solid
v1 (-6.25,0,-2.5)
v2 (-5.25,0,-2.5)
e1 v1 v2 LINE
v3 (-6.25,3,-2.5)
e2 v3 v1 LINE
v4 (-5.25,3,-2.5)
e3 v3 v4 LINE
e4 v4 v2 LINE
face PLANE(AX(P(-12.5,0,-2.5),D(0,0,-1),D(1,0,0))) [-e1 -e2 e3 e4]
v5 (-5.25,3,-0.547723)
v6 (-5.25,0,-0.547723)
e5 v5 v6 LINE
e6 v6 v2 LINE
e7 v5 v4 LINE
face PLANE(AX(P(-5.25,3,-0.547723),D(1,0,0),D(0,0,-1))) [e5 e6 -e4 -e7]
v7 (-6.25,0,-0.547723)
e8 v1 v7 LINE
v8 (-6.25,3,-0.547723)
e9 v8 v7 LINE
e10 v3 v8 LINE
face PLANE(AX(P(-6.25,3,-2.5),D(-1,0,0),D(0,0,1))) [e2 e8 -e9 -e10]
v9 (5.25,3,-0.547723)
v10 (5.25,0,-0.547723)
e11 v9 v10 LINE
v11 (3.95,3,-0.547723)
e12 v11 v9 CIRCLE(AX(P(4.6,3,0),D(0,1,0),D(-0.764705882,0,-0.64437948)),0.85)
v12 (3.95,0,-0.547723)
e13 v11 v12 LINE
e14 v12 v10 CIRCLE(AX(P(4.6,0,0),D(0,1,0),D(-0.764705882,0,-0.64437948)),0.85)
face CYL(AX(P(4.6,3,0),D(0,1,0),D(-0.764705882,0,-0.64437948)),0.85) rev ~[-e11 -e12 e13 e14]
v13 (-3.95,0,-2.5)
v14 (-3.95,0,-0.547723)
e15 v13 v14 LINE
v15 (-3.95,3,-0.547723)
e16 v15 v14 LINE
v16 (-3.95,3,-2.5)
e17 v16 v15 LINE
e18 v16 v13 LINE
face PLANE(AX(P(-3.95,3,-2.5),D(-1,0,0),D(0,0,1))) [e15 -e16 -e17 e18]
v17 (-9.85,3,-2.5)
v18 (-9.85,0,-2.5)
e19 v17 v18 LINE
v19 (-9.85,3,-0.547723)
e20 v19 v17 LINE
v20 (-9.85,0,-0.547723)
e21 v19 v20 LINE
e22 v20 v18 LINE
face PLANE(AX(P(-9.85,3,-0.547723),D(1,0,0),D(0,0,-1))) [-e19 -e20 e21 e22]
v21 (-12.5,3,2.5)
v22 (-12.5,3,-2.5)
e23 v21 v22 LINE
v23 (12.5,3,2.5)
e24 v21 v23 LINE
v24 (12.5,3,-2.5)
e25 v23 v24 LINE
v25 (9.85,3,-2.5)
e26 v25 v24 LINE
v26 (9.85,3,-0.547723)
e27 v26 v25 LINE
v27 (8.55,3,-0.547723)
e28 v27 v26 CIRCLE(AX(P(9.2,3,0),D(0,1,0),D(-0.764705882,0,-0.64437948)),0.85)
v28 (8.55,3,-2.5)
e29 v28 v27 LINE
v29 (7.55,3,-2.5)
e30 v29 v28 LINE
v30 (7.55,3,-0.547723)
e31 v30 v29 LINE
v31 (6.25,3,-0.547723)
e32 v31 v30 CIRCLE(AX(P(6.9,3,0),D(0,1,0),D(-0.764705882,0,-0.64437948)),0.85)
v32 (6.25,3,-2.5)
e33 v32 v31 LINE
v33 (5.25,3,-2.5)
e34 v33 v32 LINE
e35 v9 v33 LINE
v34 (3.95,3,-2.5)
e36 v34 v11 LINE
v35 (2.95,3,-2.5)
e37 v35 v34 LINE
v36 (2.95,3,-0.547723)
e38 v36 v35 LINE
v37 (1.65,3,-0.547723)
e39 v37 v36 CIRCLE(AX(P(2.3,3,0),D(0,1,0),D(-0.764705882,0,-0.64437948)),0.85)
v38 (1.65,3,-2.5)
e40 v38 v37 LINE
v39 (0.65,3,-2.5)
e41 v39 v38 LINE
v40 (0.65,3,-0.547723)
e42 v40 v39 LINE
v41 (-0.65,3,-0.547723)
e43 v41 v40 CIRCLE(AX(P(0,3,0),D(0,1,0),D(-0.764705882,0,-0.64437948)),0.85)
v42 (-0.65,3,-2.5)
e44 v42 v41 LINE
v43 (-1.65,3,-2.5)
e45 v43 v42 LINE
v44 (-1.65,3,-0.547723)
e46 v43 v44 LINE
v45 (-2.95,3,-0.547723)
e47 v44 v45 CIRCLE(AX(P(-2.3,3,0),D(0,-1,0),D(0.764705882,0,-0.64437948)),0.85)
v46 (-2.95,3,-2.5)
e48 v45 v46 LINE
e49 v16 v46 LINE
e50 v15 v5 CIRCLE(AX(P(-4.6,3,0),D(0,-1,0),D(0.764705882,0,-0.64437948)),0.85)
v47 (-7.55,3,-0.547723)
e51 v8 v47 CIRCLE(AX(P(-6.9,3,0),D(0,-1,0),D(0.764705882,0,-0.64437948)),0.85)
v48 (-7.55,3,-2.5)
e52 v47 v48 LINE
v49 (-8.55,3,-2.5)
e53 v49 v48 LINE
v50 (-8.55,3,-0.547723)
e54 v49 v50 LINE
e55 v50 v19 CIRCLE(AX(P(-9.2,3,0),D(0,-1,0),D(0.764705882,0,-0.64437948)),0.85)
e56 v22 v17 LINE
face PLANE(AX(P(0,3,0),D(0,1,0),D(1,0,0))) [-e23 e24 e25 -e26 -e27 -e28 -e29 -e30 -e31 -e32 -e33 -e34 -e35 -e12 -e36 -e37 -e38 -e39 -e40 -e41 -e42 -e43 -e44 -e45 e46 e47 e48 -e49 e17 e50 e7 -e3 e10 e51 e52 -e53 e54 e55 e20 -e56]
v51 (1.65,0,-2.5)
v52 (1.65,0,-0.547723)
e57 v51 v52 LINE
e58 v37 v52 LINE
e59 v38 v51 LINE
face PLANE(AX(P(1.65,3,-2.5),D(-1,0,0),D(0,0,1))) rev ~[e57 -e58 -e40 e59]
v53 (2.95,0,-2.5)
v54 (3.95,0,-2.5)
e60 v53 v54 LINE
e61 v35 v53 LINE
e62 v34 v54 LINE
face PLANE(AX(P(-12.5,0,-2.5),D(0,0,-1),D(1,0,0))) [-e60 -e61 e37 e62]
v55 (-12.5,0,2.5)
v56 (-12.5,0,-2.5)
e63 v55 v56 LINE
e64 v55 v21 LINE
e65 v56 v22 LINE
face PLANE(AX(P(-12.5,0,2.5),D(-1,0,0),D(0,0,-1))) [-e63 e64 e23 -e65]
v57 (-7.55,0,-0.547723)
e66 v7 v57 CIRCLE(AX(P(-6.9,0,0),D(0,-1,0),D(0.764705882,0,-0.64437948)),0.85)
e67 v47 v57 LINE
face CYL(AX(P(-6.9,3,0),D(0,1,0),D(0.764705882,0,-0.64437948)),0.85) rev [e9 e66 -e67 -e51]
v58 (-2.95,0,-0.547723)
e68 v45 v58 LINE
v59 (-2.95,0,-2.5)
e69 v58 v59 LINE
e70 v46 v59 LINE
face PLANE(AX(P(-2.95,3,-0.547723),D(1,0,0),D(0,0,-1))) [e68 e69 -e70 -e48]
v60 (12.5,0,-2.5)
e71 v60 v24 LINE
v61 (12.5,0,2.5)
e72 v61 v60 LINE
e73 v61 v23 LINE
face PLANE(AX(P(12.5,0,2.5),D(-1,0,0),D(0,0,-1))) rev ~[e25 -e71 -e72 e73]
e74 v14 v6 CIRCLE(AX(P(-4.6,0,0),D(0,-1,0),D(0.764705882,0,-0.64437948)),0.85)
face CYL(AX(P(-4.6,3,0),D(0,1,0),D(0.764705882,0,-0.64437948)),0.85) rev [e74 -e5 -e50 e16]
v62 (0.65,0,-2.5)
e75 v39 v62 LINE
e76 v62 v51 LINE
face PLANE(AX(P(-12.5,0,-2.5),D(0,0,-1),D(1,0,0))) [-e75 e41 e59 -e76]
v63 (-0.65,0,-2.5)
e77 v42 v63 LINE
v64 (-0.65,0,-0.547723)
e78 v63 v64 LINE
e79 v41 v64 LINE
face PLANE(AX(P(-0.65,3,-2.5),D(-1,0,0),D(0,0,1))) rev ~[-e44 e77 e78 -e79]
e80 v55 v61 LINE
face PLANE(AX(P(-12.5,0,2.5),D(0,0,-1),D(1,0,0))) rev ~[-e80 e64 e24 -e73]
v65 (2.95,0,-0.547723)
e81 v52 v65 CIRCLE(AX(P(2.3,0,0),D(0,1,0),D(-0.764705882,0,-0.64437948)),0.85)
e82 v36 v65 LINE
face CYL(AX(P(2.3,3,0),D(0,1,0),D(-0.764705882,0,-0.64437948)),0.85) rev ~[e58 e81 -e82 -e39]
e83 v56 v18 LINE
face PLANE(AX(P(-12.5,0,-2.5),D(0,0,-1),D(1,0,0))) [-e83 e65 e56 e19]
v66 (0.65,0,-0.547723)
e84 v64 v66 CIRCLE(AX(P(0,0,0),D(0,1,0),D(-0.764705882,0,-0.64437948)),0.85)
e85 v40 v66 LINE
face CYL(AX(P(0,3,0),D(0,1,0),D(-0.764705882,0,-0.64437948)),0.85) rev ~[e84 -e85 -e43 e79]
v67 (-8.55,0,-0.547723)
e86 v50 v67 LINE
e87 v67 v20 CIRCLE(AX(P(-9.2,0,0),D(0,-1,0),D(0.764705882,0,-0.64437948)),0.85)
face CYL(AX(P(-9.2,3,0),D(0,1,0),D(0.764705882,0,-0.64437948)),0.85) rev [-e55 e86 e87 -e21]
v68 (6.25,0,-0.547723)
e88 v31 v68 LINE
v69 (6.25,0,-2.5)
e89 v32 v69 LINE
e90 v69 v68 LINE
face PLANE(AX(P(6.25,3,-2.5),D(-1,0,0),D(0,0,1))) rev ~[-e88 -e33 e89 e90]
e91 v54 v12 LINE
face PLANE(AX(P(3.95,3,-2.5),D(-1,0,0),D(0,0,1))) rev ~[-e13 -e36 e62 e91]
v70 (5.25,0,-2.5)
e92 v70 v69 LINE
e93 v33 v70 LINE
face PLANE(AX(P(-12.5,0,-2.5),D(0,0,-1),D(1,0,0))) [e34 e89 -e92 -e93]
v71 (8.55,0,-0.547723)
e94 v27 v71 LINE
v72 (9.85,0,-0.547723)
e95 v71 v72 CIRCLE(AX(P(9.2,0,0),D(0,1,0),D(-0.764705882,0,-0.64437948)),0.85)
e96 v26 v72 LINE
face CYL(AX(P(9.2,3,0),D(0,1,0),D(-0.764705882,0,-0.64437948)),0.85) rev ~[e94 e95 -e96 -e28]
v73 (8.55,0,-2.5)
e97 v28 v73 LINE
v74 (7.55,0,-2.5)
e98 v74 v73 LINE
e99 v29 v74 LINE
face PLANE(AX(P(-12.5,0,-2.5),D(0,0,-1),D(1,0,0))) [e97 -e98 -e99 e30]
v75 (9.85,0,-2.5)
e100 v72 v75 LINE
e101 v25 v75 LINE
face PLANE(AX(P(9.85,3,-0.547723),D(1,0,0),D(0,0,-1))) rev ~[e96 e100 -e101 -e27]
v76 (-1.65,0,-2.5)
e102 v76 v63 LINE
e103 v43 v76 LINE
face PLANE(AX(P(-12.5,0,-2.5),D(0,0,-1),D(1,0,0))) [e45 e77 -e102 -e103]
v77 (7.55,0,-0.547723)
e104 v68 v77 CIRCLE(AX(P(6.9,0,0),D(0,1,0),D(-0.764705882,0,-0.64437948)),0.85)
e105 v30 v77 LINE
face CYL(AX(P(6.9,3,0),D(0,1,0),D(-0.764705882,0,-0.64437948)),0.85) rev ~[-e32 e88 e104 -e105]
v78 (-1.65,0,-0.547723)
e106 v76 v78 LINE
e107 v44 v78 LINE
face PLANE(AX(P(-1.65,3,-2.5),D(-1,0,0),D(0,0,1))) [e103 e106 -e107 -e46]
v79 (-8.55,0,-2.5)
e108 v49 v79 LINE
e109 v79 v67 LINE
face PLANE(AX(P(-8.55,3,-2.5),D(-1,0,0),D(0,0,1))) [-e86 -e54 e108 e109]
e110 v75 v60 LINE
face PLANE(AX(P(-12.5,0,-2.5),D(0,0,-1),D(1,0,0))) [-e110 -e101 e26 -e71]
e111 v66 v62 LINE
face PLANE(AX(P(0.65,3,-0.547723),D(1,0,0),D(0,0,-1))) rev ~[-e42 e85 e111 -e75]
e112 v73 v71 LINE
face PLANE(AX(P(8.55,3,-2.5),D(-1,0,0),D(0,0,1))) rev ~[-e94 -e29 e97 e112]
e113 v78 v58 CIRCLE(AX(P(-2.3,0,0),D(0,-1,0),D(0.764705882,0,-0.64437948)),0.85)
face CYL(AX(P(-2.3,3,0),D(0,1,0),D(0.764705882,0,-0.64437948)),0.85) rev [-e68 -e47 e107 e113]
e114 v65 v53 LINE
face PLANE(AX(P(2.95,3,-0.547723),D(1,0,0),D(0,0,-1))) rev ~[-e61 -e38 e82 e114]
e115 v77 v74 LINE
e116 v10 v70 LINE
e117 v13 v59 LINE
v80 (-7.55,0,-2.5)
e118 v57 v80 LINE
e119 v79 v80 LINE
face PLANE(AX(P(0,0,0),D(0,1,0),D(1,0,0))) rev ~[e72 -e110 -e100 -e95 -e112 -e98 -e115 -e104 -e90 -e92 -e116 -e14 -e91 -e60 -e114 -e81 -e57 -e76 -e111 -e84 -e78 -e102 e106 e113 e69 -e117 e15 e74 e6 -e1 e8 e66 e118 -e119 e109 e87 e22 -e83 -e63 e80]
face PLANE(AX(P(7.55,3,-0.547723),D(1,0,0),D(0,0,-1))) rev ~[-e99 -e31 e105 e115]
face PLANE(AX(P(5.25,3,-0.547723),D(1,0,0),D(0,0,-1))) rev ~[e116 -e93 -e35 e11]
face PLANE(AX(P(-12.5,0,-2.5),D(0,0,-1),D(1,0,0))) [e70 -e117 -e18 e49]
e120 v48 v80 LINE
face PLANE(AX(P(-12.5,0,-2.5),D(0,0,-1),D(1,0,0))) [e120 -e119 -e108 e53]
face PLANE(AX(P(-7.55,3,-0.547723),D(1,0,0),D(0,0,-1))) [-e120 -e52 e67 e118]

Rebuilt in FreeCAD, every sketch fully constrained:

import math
import FreeCAD as App
import Part
import Sketcher

doc = App.newDocument("Part")
params = doc.addObject("Spreadsheet::Sheet", "Params")
for row, (alias, value) in enumerate([
    ("sketch1_width", "25 mm"),
    ("sketch1_height", "5 mm"),
    ("pad1_length", "3 mm"),
    ("sketch2_radius", "0.85 mm"),
    ("sketch2_width", "1.3 mm"),
    ("pocket1_length", "3 mm"),
    ("linearpattern_pitch", "2.3 mm"),
    ("sketch3_radius", "0.85 mm"),
    ("sketch3_width", "1.3 mm"),
    ("pocket2_length", "3 mm"),
    ("sketch4_radius", "0.85 mm"),
    ("sketch4_width", "1.3 mm"),
    ("pocket3_length", "3 mm"),
    ("sketch5_radius", "0.85 mm"),
    ("sketch5_width", "1.3 mm"),
    ("pocket4_length", "3 mm"),
    ("sketch6_radius", "0.85 mm"),
    ("sketch6_width", "1.3 mm"),
    ("pocket5_length", "3 mm"),
    ("sketch7_radius", "0.85 mm"),
    ("sketch7_width", "1.3 mm"),
    ("pocket6_length", "3 mm"),
], start=1):
    params.set(f"A{row}", alias)
    params.set(f"B{row}", "=" + value)
    params.setAlias(f"B{row}", alias)

body = doc.addObject("PartDesign::Body", "Body")

# Sketch on XZ plane
sketch1 = body.newObject("Sketcher::SketchObject", "Sketch")
sketch1.AttachmentSupport = (doc.getObject("XZ_Plane"), [""])
sketch1.MapMode = "FlatFace"
sketch1.addGeometry([
    Part.LineSegment(App.Vector(-12, -2, 0), App.Vector(-12, 2, 0)),
    Part.LineSegment(App.Vector(-12, 2, 0), App.Vector(12, 2, 0)),
    Part.LineSegment(App.Vector(12, 2, 0), App.Vector(12, -2, 0)),
    Part.LineSegment(App.Vector(12, -2, 0), App.Vector(-12, -2, 0)),
], False)
sketch1.addConstraint([
    Sketcher.Constraint("Coincident", 0, 2, 1, 1),
    Sketcher.Constraint("Coincident", 1, 2, 2, 1),
    Sketcher.Constraint("Coincident", 2, 2, 3, 1),
    Sketcher.Constraint("Coincident", 3, 2, 0, 1),
    Sketcher.Constraint("Vertical", 0),
    Sketcher.Constraint("Horizontal", 1),
    Sketcher.Constraint("Vertical", 2),
    Sketcher.Constraint("Horizontal", 3),
    Sketcher.Constraint("Symmetric", 0, 2, 2, 2, -1, 1),
    Sketcher.Constraint("DistanceX", 1, 1, 1, 2, 25.0),
    Sketcher.Constraint("DistanceY", 0, 1, 0, 2, 5.0),
])
sketch1.setExpression("Constraints[9]", "Params.sketch1_width")
sketch1.setExpression("Constraints[10]", "Params.sketch1_height")
pad1 = body.newObject("PartDesign::Pad", "Pad")
pad1.Profile = sketch1
pad1.setExpression("Length", "Params.pad1_length")
pad1.Reversed = True

# Sketch on XZ plane
sketch2 = body.newObject("Sketcher::SketchObject", "Sketch001")
sketch2.AttachmentSupport = (doc.getObject("XZ_Plane"), [""])
sketch2.MapMode = "FlatFace"
sketch2.AttachmentOffset = App.Placement(App.Vector(0, 0, -3), App.Rotation())
sketch2.addGeometry([
    Part.LineSegment(App.Vector(0.7, -0.5, 0), App.Vector(0.7, -2.5, 0)),
    Part.LineSegment(App.Vector(0.7, -2.5, 0), App.Vector(-0.7, -2.5, 0)),
    Part.LineSegment(App.Vector(-0.7, -2.5, 0), App.Vector(-0.7, -0.5, 0)),
    Part.ArcOfCircle(Part.Circle(App.Vector(0, 0, 0), App.Vector(0, 0, 1), 0.8), math.radians(-40), math.radians(220)),
], False)
sketch2.addConstraint([
    Sketcher.Constraint("Coincident", 0, 2, 1, 1),
    Sketcher.Constraint("Coincident", 1, 2, 2, 1),
    Sketcher.Constraint("Coincident", 2, 2, 3, 2),
    Sketcher.Constraint("Coincident", 3, 1, 0, 1),
    Sketcher.Constraint("Vertical", 0),
    Sketcher.Constraint("Horizontal", 1),
    Sketcher.Constraint("Vertical", 2),
    Sketcher.Constraint("Coincident", 3, 3, -1, 1),
    Sketcher.Constraint("Horizontal", 2, 2, 3, 1),
    Sketcher.Constraint("Radius", 3, 0.85),
    Sketcher.Constraint("DistanceX", 1, 2, 1, 1, 1.3),
    Sketcher.Constraint("DistanceY", 0, 2, -1, 1, 2.5),
])
sketch2.setExpression("Constraints[9]", "Params.sketch2_radius")
sketch2.setExpression("Constraints[10]", "Params.sketch2_width")
pocket1 = body.newObject("PartDesign::Pocket", "Pocket")
pocket1.Profile = sketch2
pocket1.setExpression("Length", "Params.pocket1_length")
pocket1.Reversed = True
doc.recompute()

linearpattern = body.newObject("PartDesign::LinearPattern", "LinearPattern")
linearpattern.Originals = [pocket1]
linearpattern.Direction = (doc.getObject("X_Axis"), [""])
linearpattern.Mode = "offset"
linearpattern.setExpression("Offset", "Params.linearpattern_pitch")
linearpattern.Occurrences = 5
body.Tip = linearpattern

# Sketch on XZ plane
sketch3 = body.newObject("Sketcher::SketchObject", "Sketch002")
sketch3.AttachmentSupport = (doc.getObject("XZ_Plane"), [""])
sketch3.MapMode = "FlatFace"
sketch3.AttachmentOffset = App.Placement(App.Vector(0, 0, -3), App.Rotation())
sketch3.addGeometry([
    Part.LineSegment(App.Vector(-3, -2.5, 0), App.Vector(-3, -0.5, 0)),
    Part.ArcOfCircle(Part.Circle(App.Vector(-2.3, 0, 0), App.Vector(0, 0, 1), 0.8), math.radians(-40), math.radians(220)),
    Part.LineSegment(App.Vector(-1.6, -0.5, 0), App.Vector(-1.6, -2.5, 0)),
    Part.LineSegment(App.Vector(-1.6, -2.5, 0), App.Vector(-3, -2.5, 0)),
], False)
sketch3.addConstraint([
    Sketcher.Constraint("Coincident", 0, 2, 1, 2),
    Sketcher.Constraint("Coincident", 1, 1, 2, 1),
    Sketcher.Constraint("Coincident", 2, 2, 3, 1),
    Sketcher.Constraint("Coincident", 3, 2, 0, 1),
    Sketcher.Constraint("Vertical", 0),
    Sketcher.Constraint("Vertical", 2),
    Sketcher.Constraint("Horizontal", 3),
    Sketcher.Constraint("PointOnObject", 1, 3, -1),
    Sketcher.Constraint("Horizontal", 0, 2, 1, 1),
    Sketcher.Constraint("Radius", 1, 0.85),
    Sketcher.Constraint("DistanceX", 3, 2, 3, 1, 1.3),
    Sketcher.Constraint("DistanceX", 1, 3, -1, 1, 2.3),
    Sketcher.Constraint("DistanceY", 2, 2, -1, 1, 2.5),
])
sketch3.setExpression("Constraints[9]", "Params.sketch3_radius")
sketch3.setExpression("Constraints[10]", "Params.sketch3_width")
pocket2 = body.newObject("PartDesign::Pocket", "Pocket001")
pocket2.Profile = sketch3
pocket2.setExpression("Length", "Params.pocket2_length")
pocket2.Reversed = True

# Sketch on XZ plane
sketch4 = body.newObject("Sketcher::SketchObject", "Sketch003")
sketch4.AttachmentSupport = (doc.getObject("XZ_Plane"), [""])
sketch4.MapMode = "FlatFace"
sketch4.AttachmentOffset = App.Placement(App.Vector(0, 0, -3), App.Rotation())
sketch4.addGeometry([
    Part.LineSegment(App.Vector(-5.2, -2.5, 0), App.Vector(-5.2, -0.5, 0)),
    Part.ArcOfCircle(Part.Circle(App.Vector(-4.6, 0, 0), App.Vector(0, 0, 1), 0.8), math.radians(-40), math.radians(220)),
    Part.LineSegment(App.Vector(-4, -0.5, 0), App.Vector(-4, -2.5, 0)),
    Part.LineSegment(App.Vector(-4, -2.5, 0), App.Vector(-5.2, -2.5, 0)),
], False)
sketch4.addConstraint([
    Sketcher.Constraint("Coincident", 0, 2, 1, 2),
    Sketcher.Constraint("Coincident", 1, 1, 2, 1),
    Sketcher.Constraint("Coincident", 2, 2, 3, 1),
    Sketcher.Constraint("Coincident", 3, 2, 0, 1),
    Sketcher.Constraint("Vertical", 0),
    Sketcher.Constraint("Vertical", 2),
    Sketcher.Constraint("Horizontal", 3),
    Sketcher.Constraint("PointOnObject", 1, 3, -1),
    Sketcher.Constraint("Horizontal", 0, 2, 1, 1),
    Sketcher.Constraint("Radius", 1, 0.85),
    Sketcher.Constraint("DistanceX", 3, 2, 3, 1, 1.3),
    Sketcher.Constraint("DistanceX", 1, 3, -1, 1, 4.6),
    Sketcher.Constraint("DistanceY", 2, 2, -1, 1, 2.5),
])
sketch4.setExpression("Constraints[9]", "Params.sketch4_radius")
sketch4.setExpression("Constraints[10]", "Params.sketch4_width")
pocket3 = body.newObject("PartDesign::Pocket", "Pocket002")
pocket3.Profile = sketch4
pocket3.setExpression("Length", "Params.pocket3_length")
pocket3.Reversed = True

# Sketch on XZ plane
sketch5 = body.newObject("Sketcher::SketchObject", "Sketch004")
sketch5.AttachmentSupport = (doc.getObject("XZ_Plane"), [""])
sketch5.MapMode = "FlatFace"
sketch5.AttachmentOffset = App.Placement(App.Vector(0, 0, -3), App.Rotation())
sketch5.addGeometry([
    Part.LineSegment(App.Vector(-7.5, -2.5, 0), App.Vector(-7.5, -0.5, 0)),
    Part.ArcOfCircle(Part.Circle(App.Vector(-6.9, 0, 0), App.Vector(0, 0, 1), 0.8), math.radians(-40), math.radians(220)),
    Part.LineSegment(App.Vector(-6.2, -0.5, 0), App.Vector(-6.2, -2.5, 0)),
    Part.LineSegment(App.Vector(-6.2, -2.5, 0), App.Vector(-7.5, -2.5, 0)),
], False)
sketch5.addConstraint([
    Sketcher.Constraint("Coincident", 0, 2, 1, 2),
    Sketcher.Constraint("Coincident", 1, 1, 2, 1),
    Sketcher.Constraint("Coincident", 2, 2, 3, 1),
    Sketcher.Constraint("Coincident", 3, 2, 0, 1),
    Sketcher.Constraint("Vertical", 0),
    Sketcher.Constraint("Vertical", 2),
    Sketcher.Constraint("Horizontal", 3),
    Sketcher.Constraint("PointOnObject", 1, 3, -1),
    Sketcher.Constraint("Horizontal", 0, 2, 1, 1),
    Sketcher.Constraint("Radius", 1, 0.85),
    Sketcher.Constraint("DistanceX", 3, 2, 3, 1, 1.3),
    Sketcher.Constraint("DistanceX", 1, 3, -1, 1, 6.9),
    Sketcher.Constraint("DistanceY", 2, 2, -1, 1, 2.5),
])
sketch5.setExpression("Constraints[9]", "Params.sketch5_radius")
sketch5.setExpression("Constraints[10]", "Params.sketch5_width")
pocket4 = body.newObject("PartDesign::Pocket", "Pocket003")
pocket4.Profile = sketch5
pocket4.setExpression("Length", "Params.pocket4_length")
pocket4.Reversed = True

# Sketch on XZ plane
sketch6 = body.newObject("Sketcher::SketchObject", "Sketch005")
sketch6.AttachmentSupport = (doc.getObject("XZ_Plane"), [""])
sketch6.MapMode = "FlatFace"
sketch6.AttachmentOffset = App.Placement(App.Vector(0, 0, -3), App.Rotation())
sketch6.addGeometry([
    Part.LineSegment(App.Vector(-9.8, -2.5, 0), App.Vector(-9.8, -0.5, 0)),
    Part.ArcOfCircle(Part.Circle(App.Vector(-9.2, 0, 0), App.Vector(0, 0, 1), 0.8), math.radians(-40), math.radians(220)),
    Part.LineSegment(App.Vector(-8.6, -0.5, 0), App.Vector(-8.6, -2.5, 0)),
    Part.LineSegment(App.Vector(-8.6, -2.5, 0), App.Vector(-9.8, -2.5, 0)),
], False)
sketch6.addConstraint([
    Sketcher.Constraint("Coincident", 0, 2, 1, 2),
    Sketcher.Constraint("Coincident", 1, 1, 2, 1),
    Sketcher.Constraint("Coincident", 2, 2, 3, 1),
    Sketcher.Constraint("Coincident", 3, 2, 0, 1),
    Sketcher.Constraint("Vertical", 0),
    Sketcher.Constraint("Vertical", 2),
    Sketcher.Constraint("Horizontal", 3),
    Sketcher.Constraint("PointOnObject", 1, 3, -1),
    Sketcher.Constraint("Horizontal", 0, 2, 1, 1),
    Sketcher.Constraint("Radius", 1, 0.85),
    Sketcher.Constraint("DistanceX", 3, 2, 3, 1, 1.3),
    Sketcher.Constraint("DistanceX", 1, 3, -1, 1, 9.2),
    Sketcher.Constraint("DistanceY", 2, 2, -1, 1, 2.5),
])
sketch6.setExpression("Constraints[9]", "Params.sketch6_radius")
sketch6.setExpression("Constraints[10]", "Params.sketch6_width")
pocket5 = body.newObject("PartDesign::Pocket", "Pocket004")
pocket5.Profile = sketch6
pocket5.setExpression("Length", "Params.pocket5_length")
pocket5.Reversed = True

# Sketch on XZ plane
sketch7 = body.newObject("Sketcher::SketchObject", "Sketch006")
sketch7.AttachmentSupport = (doc.getObject("XZ_Plane"), [""])
sketch7.MapMode = "FlatFace"
sketch7.AttachmentOffset = App.Placement(App.Vector(0, 0, -3), App.Rotation())
sketch7.addGeometry([
    Part.LineSegment(App.Vector(-0.7, -2.5, 0), App.Vector(-0.7, -0.5, 0)),
    Part.ArcOfCircle(Part.Circle(App.Vector(0, 0, 0), App.Vector(0, 0, 1), 0.8), math.radians(-40), math.radians(220)),
    Part.LineSegment(App.Vector(0.7, -0.5, 0), App.Vector(0.7, -2.5, 0)),
    Part.LineSegment(App.Vector(0.7, -2.5, 0), App.Vector(-0.7, -2.5, 0)),
], False)
sketch7.addConstraint([
    Sketcher.Constraint("Coincident", 0, 2, 1, 2),
    Sketcher.Constraint("Coincident", 1, 1, 2, 1),
    Sketcher.Constraint("Coincident", 2, 2, 3, 1),
    Sketcher.Constraint("Coincident", 3, 2, 0, 1),
    Sketcher.Constraint("Vertical", 0),
    Sketcher.Constraint("Vertical", 2),
    Sketcher.Constraint("Horizontal", 3),
    Sketcher.Constraint("Coincident", 1, 3, -1, 1),
    Sketcher.Constraint("Horizontal", 0, 2, 1, 1),
    Sketcher.Constraint("Radius", 1, 0.85),
    Sketcher.Constraint("DistanceX", 3, 2, 3, 1, 1.3),
    Sketcher.Constraint("DistanceY", 2, 2, -1, 1, 2.5),
])
sketch7.setExpression("Constraints[9]", "Params.sketch7_radius")
sketch7.setExpression("Constraints[10]", "Params.sketch7_width")
pocket6 = body.newObject("PartDesign::Pocket", "Pocket005")
pocket6.Profile = sketch7
pocket6.setExpression("Length", "Params.pocket6_length")
pocket6.Reversed = True

doc.recompute()
